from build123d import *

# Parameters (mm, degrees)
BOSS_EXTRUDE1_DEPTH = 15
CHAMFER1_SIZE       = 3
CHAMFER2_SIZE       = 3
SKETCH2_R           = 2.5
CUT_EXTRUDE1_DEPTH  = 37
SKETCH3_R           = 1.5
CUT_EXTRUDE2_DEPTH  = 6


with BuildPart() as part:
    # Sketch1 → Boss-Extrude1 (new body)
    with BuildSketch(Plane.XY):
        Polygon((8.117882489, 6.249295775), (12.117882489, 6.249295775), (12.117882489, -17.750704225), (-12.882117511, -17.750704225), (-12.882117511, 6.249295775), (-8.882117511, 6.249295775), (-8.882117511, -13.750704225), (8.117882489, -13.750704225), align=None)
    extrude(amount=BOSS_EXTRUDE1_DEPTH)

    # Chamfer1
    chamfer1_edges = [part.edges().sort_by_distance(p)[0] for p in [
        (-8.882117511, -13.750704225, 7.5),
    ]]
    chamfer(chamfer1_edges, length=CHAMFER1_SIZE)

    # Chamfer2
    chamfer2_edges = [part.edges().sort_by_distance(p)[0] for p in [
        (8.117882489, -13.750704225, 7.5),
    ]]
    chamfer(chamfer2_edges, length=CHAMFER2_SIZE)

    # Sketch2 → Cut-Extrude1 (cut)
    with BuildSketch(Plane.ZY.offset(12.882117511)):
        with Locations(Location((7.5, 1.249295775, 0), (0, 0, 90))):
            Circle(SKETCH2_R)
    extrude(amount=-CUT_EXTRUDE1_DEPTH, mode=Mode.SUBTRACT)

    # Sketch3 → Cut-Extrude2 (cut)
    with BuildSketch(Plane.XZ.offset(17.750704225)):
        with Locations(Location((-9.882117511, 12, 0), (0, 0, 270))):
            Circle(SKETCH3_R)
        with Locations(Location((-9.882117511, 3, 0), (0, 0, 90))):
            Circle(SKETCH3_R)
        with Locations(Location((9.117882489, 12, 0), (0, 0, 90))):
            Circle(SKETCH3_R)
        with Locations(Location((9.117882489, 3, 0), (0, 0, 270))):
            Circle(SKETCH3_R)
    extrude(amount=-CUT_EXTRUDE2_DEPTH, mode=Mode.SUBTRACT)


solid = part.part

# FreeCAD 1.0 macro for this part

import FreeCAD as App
import Part
import Sketcher
Q = App.Units.Quantity


def edges_at(feature, points):
    """Names of the edges that pass closest to the given points."""
    edges = feature.Shape.Edges
    near = lambda p: min(range(len(edges)), key=lambda i: edges[i].distToShape(Part.Vertex(*p))[0])
    return sorted({f"Edge{near(p) + 1}" for p in points})

doc = App.newDocument("Part")
body = doc.addObject("PartDesign::Body", "Body")

sketch1 = body.newObject("Sketcher::SketchObject", "Sketch")
sketch1.AttachmentSupport = (doc.getObject("XY_Plane"), [""])
sketch1.MapMode = "FlatFace"
sketch1.addGeometry([
    Part.LineSegment(App.Vector(12.1, 6.2, 0), App.Vector(8.1, 6.2, 0)),
    Part.LineSegment(App.Vector(8.1, 6.2, 0), App.Vector(8.1, -13.8, 0)),
    Part.LineSegment(App.Vector(8.1, -13.8, 0), App.Vector(-8.9, -13.8, 0)),
    Part.LineSegment(App.Vector(-8.9, -13.8, 0), App.Vector(-8.9, 6.2, 0)),
    Part.LineSegment(App.Vector(-8.9, 6.2, 0), App.Vector(-12.9, 6.2, 0)),
    Part.LineSegment(App.Vector(-12.9, 6.2, 0), App.Vector(-12.9, -17.8, 0)),
    Part.LineSegment(App.Vector(-12.9, -17.8, 0), App.Vector(12.1, -17.8, 0)),
    Part.LineSegment(App.Vector(12.1, -17.8, 0), App.Vector(12.1, 6.2, 0)),
], False)
sketch1.addConstraint([
    Sketcher.Constraint("Coincident", 0, 2, 1, 1),
    Sketcher.Constraint("Coincident", 1, 2, 2, 1),
    Sketcher.Constraint("Coincident", 2, 2, 3, 1),
    Sketcher.Constraint("Coincident", 3, 2, 4, 1),
    Sketcher.Constraint("Coincident", 4, 2, 5, 1),
    Sketcher.Constraint("Coincident", 5, 2, 6, 1),
    Sketcher.Constraint("Coincident", 6, 2, 7, 1),
    Sketcher.Constraint("Coincident", 7, 2, 0, 1),
    Sketcher.Constraint("Horizontal", 0),
    Sketcher.Constraint("Vertical", 1),
    Sketcher.Constraint("Horizontal", 2),
    Sketcher.Constraint("Vertical", 3),
    Sketcher.Constraint("Horizontal", 4),
    Sketcher.Constraint("Vertical", 5),
    Sketcher.Constraint("Horizontal", 6),
    Sketcher.Constraint("Vertical", 7),
    Sketcher.Constraint("Horizontal", 0, 2, 3, 2),
    Sketcher.Constraint("Equal", 0, 4),
    Sketcher.Constraint("DistanceX", 0, 2, 0, 1, Q("4 mm")),
    Sketcher.Constraint("DistanceX", 2, 2, 2, 1, Q("17 mm")),
    Sketcher.Constraint("DistanceY", 1, 2, 1, 1, Q("20 mm")),
    Sketcher.Constraint("DistanceY", 5, 2, 5, 1, Q("24 mm")),
    Sketcher.Constraint("DistanceX", -1, 1, 0, 2, Q("8.117882 mm")),
    Sketcher.Constraint("DistanceY", -1, 1, 0, 2, Q("6.249296 mm")),
])
pad1 = body.newObject("PartDesign::Pad", "Pad")
pad1.Profile = sketch1
pad1.Length = 15
doc.recompute()

chamfer = body.newObject("PartDesign::Chamfer", "Chamfer")
chamfer.Base = (pad1, edges_at(pad1, [(-8.882, -13.751, 7.5)]))
chamfer.Size = 3
doc.recompute()

chamfer2 = body.newObject("PartDesign::Chamfer", "Chamfer001")
chamfer2.Base = (chamfer, edges_at(chamfer, [(8.118, -13.751, 7.5)]))
chamfer2.Size = 3

sketch2 = body.newObject("Sketcher::SketchObject", "Sketch001")
sketch2.AttachmentSupport = (doc.getObject("YZ_Plane"), [""])
sketch2.MapMode = "FlatFace"
sketch2.AttachmentOffset = App.Placement(App.Vector(0, 0, -12.882118), App.Rotation())
sketch2.addGeometry(Part.Circle(App.Vector(1.2, 7.5, 0), App.Vector(0, 0, 1), 2.5), False)
sketch2.addConstraint([
    Sketcher.Constraint("Diameter", 0, Q("5 mm")),
    Sketcher.Constraint("DistanceY", -1, 1, 0, 3, Q("7.5 mm")),
    Sketcher.Constraint("DistanceX", -1, 1, 0, 3, Q("1.249296 mm")),
])
pocket1 = body.newObject("PartDesign::Pocket", "Pocket")
pocket1.Profile = sketch2
pocket1.Length = 37
pocket1.Reversed = True

sketch3 = body.newObject("Sketcher::SketchObject", "Sketch002")
sketch3.AttachmentSupport = (doc.getObject("XZ_Plane"), [""])
sketch3.MapMode = "FlatFace"
sketch3.AttachmentOffset = App.Placement(App.Vector(0, 0, 17.750704), App.Rotation())
sketch3.addGeometry([
    Part.Circle(App.Vector(-9.9, 12, 0), App.Vector(0, 0, 1), 1.5),
    Part.Circle(App.Vector(-9.9, 3, 0), App.Vector(0, 0, 1), 1.5),
    Part.Circle(App.Vector(9.1, 12, 0), App.Vector(0, 0, 1), 1.5),
    Part.Circle(App.Vector(9.1, 3, 0), App.Vector(0, 0, 1), 1.5),
], False)
sketch3.addConstraint([
    Sketcher.Constraint("Equal", 0, 1),
    Sketcher.Constraint("Equal", 1, 2),
    Sketcher.Constraint("Equal", 2, 3),
    Sketcher.Constraint("Horizontal", 0, 3, 2, 3),
    Sketcher.Constraint("Horizontal", 1, 3, 3, 3),
    Sketcher.Constraint("Vertical", 0, 3, 1, 3),
    Sketcher.Constraint("Vertical", 2, 3, 3, 3),
    Sketcher.Constraint("Diameter", 0, Q("3 mm")),
    Sketcher.Constraint("DistanceY", -1, 1, 0, 3, Q("12 mm")),
    Sketcher.Constraint("DistanceY", -1, 1, 1, 3, Q("3 mm")),
    Sketcher.Constraint("DistanceX", 0, 3, 2, 3, Q("19 mm")),
    Sketcher.Constraint("DistanceX", 0, 3, -1, 1, Q("9.882118 mm")),
])
pocket2 = body.newObject("PartDesign::Pocket", "Pocket001")
pocket2.Profile = sketch3
pocket2.Length = 6

doc.recompute()
